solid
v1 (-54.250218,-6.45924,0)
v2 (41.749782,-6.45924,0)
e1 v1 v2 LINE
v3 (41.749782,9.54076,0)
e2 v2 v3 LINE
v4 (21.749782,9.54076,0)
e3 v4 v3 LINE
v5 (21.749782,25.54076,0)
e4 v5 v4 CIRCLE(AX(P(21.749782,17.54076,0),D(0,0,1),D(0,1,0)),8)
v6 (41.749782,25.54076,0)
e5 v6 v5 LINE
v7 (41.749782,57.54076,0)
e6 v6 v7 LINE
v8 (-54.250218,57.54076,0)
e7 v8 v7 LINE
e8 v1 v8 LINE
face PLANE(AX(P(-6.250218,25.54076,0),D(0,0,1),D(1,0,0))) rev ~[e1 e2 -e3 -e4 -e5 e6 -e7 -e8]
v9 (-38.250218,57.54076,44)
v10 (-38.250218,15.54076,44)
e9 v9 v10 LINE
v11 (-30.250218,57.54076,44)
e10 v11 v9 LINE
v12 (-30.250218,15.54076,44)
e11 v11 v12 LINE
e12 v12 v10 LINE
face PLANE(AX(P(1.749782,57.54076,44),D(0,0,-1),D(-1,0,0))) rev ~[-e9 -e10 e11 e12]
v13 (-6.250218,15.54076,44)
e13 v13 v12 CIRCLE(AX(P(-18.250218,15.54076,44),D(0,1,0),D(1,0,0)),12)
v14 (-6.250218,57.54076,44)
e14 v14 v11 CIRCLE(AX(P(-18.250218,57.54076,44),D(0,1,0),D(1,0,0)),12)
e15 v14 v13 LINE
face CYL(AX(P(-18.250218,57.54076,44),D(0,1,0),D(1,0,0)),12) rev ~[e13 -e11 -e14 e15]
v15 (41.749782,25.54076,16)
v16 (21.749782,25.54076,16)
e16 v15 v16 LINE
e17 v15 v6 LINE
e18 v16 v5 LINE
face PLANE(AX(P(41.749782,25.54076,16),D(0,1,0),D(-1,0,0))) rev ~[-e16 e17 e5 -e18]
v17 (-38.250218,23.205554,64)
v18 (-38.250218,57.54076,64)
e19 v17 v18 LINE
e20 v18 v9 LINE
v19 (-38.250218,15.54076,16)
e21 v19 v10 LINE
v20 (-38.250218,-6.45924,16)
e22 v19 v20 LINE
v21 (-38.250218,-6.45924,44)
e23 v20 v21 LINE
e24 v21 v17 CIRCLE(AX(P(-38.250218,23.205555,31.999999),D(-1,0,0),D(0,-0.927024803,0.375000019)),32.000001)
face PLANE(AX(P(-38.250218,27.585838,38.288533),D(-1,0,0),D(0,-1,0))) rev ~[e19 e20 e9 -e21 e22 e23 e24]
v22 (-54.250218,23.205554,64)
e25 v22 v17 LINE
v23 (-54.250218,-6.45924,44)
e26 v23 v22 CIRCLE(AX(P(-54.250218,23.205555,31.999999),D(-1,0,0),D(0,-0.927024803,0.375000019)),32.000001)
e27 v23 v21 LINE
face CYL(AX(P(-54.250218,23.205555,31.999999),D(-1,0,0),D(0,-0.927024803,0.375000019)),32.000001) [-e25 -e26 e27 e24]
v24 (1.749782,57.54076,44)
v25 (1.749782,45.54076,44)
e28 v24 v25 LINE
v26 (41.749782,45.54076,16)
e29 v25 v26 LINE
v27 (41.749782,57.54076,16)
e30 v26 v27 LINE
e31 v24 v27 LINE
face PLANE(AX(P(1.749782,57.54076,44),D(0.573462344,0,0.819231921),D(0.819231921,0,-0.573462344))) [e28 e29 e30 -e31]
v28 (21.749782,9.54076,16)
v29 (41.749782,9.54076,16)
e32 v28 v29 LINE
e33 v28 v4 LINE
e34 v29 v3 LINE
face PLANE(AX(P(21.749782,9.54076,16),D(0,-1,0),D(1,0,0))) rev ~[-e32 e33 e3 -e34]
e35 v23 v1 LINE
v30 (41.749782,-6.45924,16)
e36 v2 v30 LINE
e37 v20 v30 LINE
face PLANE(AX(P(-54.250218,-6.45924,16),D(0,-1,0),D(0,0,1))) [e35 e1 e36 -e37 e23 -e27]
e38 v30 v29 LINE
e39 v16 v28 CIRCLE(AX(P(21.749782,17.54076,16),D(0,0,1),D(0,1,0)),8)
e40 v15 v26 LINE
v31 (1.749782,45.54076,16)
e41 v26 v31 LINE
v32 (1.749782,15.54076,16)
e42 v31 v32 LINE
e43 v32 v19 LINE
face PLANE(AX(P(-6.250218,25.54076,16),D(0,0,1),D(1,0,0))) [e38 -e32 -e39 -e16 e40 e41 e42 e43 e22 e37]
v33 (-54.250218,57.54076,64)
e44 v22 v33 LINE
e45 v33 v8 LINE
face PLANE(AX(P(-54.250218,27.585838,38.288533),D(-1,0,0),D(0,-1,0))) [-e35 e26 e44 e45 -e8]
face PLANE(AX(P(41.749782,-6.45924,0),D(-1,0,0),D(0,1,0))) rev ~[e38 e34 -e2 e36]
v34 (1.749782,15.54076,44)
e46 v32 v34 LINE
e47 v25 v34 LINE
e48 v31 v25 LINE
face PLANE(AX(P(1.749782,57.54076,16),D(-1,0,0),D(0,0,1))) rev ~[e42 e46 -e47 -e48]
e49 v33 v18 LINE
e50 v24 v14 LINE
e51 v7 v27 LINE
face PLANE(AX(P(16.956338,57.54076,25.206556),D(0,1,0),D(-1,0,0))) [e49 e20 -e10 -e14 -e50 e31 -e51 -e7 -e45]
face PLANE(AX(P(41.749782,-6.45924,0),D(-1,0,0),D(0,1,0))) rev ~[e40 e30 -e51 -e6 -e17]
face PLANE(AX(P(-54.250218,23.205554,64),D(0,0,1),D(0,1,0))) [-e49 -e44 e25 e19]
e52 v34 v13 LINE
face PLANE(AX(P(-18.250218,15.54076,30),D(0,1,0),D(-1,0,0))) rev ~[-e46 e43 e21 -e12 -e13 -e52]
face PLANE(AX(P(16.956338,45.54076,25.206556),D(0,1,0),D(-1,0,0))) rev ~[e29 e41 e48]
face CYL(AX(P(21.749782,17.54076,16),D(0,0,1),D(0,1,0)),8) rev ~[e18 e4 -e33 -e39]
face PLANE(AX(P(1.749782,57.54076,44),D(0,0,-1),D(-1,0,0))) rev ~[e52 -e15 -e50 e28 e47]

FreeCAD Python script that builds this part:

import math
import FreeCAD as App
import Part
import Sketcher


def add_polygon(sketch, points):
    """Adds a closed chain of lines whose ends are joined by coincident constraints."""
    first, n = sketch.GeometryCount, len(points)
    for a, b in zip(points, points[1:] + points[:1]):
        sketch.addGeometry(Part.LineSegment(App.Vector(*a, 0), App.Vector(*b, 0)), False)
    for i in range(n):
        sketch.addConstraint(Sketcher.Constraint("Coincident", first + i, 2, first + (i + 1) % n, 1))

doc = App.newDocument("Part")
body = doc.addObject("PartDesign::Body", "Body")

sketch1 = body.newObject("Sketcher::SketchObject", "Sketch")
sketch1.AttachmentSupport = (doc.getObject("XY_Plane"), [""])
sketch1.MapMode = "FlatFace"
add_polygon(sketch1, [(-54, 58), (-54, -6), (42, -6), (42, 58)])
sketch1.addConstraint(Sketcher.Constraint("Vertical", 0))
sketch1.addConstraint(Sketcher.Constraint("Horizontal", 1))
sketch1.addConstraint(Sketcher.Constraint("Vertical", 2))
sketch1.addConstraint(Sketcher.Constraint("Horizontal", 3))
sketch1.addConstraint(Sketcher.Constraint("DistanceX", 1, 1, 1, 2, 96.0))
sketch1.addConstraint(Sketcher.Constraint("DistanceY", 0, 2, 0, 1, 64.0))
sketch1.addConstraint(Sketcher.Constraint("DistanceY", 0, 2, -1, 1, 6.45924))
sketch1.addConstraint(Sketcher.Constraint("DistanceX", 0, 2, -1, 1, 54.250218))
pad1 = body.newObject("PartDesign::Pad", "Pad")
pad1.Profile = sketch1
pad1.Length = 16

sketch2 = body.newObject("Sketcher::SketchObject", "Sketch001")
sketch2.AttachmentSupport = (doc.getObject("YZ_Plane"), [""])
sketch2.MapMode = "FlatFace"
sketch2.AttachmentOffset = App.Placement(App.Vector(0, 0, -54.250218), App.Rotation())
sketch2.addGeometry(Part.LineSegment(App.Vector(58, 16, 0), App.Vector(-6, 16, 0)), False)
sketch2.addGeometry(Part.LineSegment(App.Vector(-6, 16, 0), App.Vector(-6, 44, 0)), False)
sketch2.addGeometry(Part.ArcOfCircle(Part.Circle(App.Vector(23, 32, 0), App.Vector(0, 0, 1), 32), math.radians(90), math.radians(158)), False)
sketch2.addGeometry(Part.LineSegment(App.Vector(23, 64, 0), App.Vector(58, 64, 0)), False)
sketch2.addGeometry(Part.LineSegment(App.Vector(58, 64, 0), App.Vector(58, 16, 0)), False)
sketch2.addConstraint(Sketcher.Constraint("Coincident", 0, 2, 1, 1))
sketch2.addConstraint(Sketcher.Constraint("Coincident", 1, 2, 2, 2))
sketch2.addConstraint(Sketcher.Constraint("Tangent", 2, 1, 3, 1))
sketch2.addConstraint(Sketcher.Constraint("Coincident", 3, 2, 4, 1))
sketch2.addConstraint(Sketcher.Constraint("Coincident", 4, 2, 0, 1))
sketch2.addConstraint(Sketcher.Constraint("Horizontal", 0))
sketch2.addConstraint(Sketcher.Constraint("Vertical", 1))
sketch2.addConstraint(Sketcher.Constraint("Horizontal", 3))
sketch2.addConstraint(Sketcher.Constraint("Vertical", 4))
sketch2.addConstraint(Sketcher.Constraint("Radius", 2, 32.000001))
sketch2.addConstraint(Sketcher.Constraint("DistanceX", 0, 2, 0, 1, 64.0))
sketch2.addConstraint(Sketcher.Constraint("DistanceY", 1, 1, 1, 2, 28.0))
sketch2.addConstraint(Sketcher.Constraint("DistanceY", 4, 2, 4, 1, 48.0))
sketch2.addConstraint(Sketcher.Constraint("DistanceY", -1, 1, 2, 3, 31.999999))
sketch2.addConstraint(Sketcher.Constraint("DistanceX", 0, 2, -1, 1, 6.45924))
pad2 = body.newObject("PartDesign::Pad", "Pad001")
pad2.Profile = sketch2
pad2.Length = 16

sketch3 = body.newObject("Sketcher::SketchObject", "Sketch002")
sketch3.AttachmentSupport = (doc.getObject("XY_Plane"), [""])
sketch3.MapMode = "FlatFace"
sketch3.AttachmentOffset = App.Placement(App.Vector(0, 0, 16), App.Rotation())
sketch3.addGeometry(Part.LineSegment(App.Vector(22, 10, 0), App.Vector(42, 10, 0)), False)
sketch3.addGeometry(Part.LineSegment(App.Vector(42, 10, 0), App.Vector(42, 26, 0)), False)
sketch3.addGeometry(Part.LineSegment(App.Vector(42, 26, 0), App.Vector(22, 26, 0)), False)
sketch3.addGeometry(Part.ArcOfCircle(Part.Circle(App.Vector(22, 18, 0), App.Vector(0, 0, 1), 8), math.radians(90), math.radians(270)), False)
sketch3.addConstraint(Sketcher.Constraint("Coincident", 0, 2, 1, 1))
sketch3.addConstraint(Sketcher.Constraint("Coincident", 1, 2, 2, 1))
sketch3.addConstraint(Sketcher.Constraint("Tangent", 2, 2, 3, 1))
sketch3.addConstraint(Sketcher.Constraint("Tangent", 3, 2, 0, 1))
sketch3.addConstraint(Sketcher.Constraint("Horizontal", 0))
sketch3.addConstraint(Sketcher.Constraint("Vertical", 1))
sketch3.addConstraint(Sketcher.Constraint("Horizontal", 2))
sketch3.addConstraint(Sketcher.Constraint("Radius", 3, 8.0))
sketch3.addConstraint(Sketcher.Constraint("DistanceX", 0, 1, 0, 2, 20.0))
sketch3.addConstraint(Sketcher.Constraint("DistanceX", -1, 1, 3, 3, 21.749782))
sketch3.addConstraint(Sketcher.Constraint("DistanceY", -1, 1, 3, 3, 17.54076))
pocket1 = body.newObject("PartDesign::Pocket", "Pocket")
pocket1.Profile = sketch3
pocket1.Length = 16

sketch4 = body.newObject("Sketcher::SketchObject", "Sketch003")
sketch4.AttachmentSupport = (doc.getObject("XZ_Plane"), [""])
sketch4.MapMode = "FlatFace"
sketch4.AttachmentOffset = App.Placement(App.Vector(0, 0, -57.54076), App.Rotation())
add_polygon(sketch4, [(2, 44), (2, 16), (-38, 16), (-38, 44)])
sketch4.addConstraint(Sketcher.Constraint("Vertical", 0))
sketch4.addConstraint(Sketcher.Constraint("Horizontal", 1))
sketch4.addConstraint(Sketcher.Constraint("Vertical", 2))
sketch4.addConstraint(Sketcher.Constraint("Horizontal", 3))
sketch4.addConstraint(Sketcher.Constraint("DistanceX", 1, 2, 1, 1, 40.0))
sketch4.addConstraint(Sketcher.Constraint("DistanceY", 0, 2, 0, 1, 28.0))
sketch4.addConstraint(Sketcher.Constraint("DistanceY", -1, 1, 0, 2, 16.0))
sketch4.addConstraint(Sketcher.Constraint("DistanceX", -1, 1, 0, 2, 1.749782))
pad3 = body.newObject("PartDesign::Pad", "Pad002")
pad3.Profile = sketch4
pad3.Length = 42

sketch5 = body.newObject("Sketcher::SketchObject", "Sketch004")
sketch5.AttachmentSupport = (doc.getObject("XZ_Plane"), [""])
sketch5.MapMode = "FlatFace"
sketch5.AttachmentOffset = App.Placement(App.Vector(0, 0, -57.54076), App.Rotation())
sketch5.addGeometry(Part.ArcOfCircle(Part.Circle(App.Vector(-18, 44, 0), App.Vector(0, 0, 1), 12), math.radians(180), math.radians(360)), False)
sketch5.addGeometry(Part.LineSegment(App.Vector(-30, 44, 0), App.Vector(-6, 44, 0)), False)
sketch5.addConstraint(Sketcher.Constraint("Coincident", 0, 1, 1, 1))
sketch5.addConstraint(Sketcher.Constraint("Coincident", 1, 2, 0, 2))
sketch5.addConstraint(Sketcher.Constraint("Horizontal", 1))
sketch5.addConstraint(Sketcher.Constraint("Radius", 0, 12.0))
sketch5.addConstraint(Sketcher.Constraint("DistanceY", -1, 1, 0, 3, 44.0))
sketch5.addConstraint(Sketcher.Constraint("DistanceY", -1, 1, 0, 1, 44.0))
sketch5.addConstraint(Sketcher.Constraint("DistanceX", 0, 3, -1, 1, 18.250218))
pocket2 = body.newObject("PartDesign::Pocket", "Pocket001")
pocket2.Profile = sketch5
pocket2.Length = 42
pocket2.Reversed = True

sketch6 = body.newObject("Sketcher::SketchObject", "Sketch005")
sketch6.AttachmentSupport = (doc.getObject("XZ_Plane"), [""])
sketch6.MapMode = "FlatFace"
sketch6.AttachmentOffset = App.Placement(App.Vector(0, 0, -57.54076), App.Rotation())
add_polygon(sketch6, [(42, 16), (2, 16), (2, 44)])
sketch6.addConstraint(Sketcher.Constraint("Horizontal", 0))
sketch6.addConstraint(Sketcher.Constraint("Vertical", 1))
sketch6.addConstraint(Sketcher.Constraint("DistanceX", 0, 2, 0, 1, 40.0))
sketch6.addConstraint(Sketcher.Constraint("DistanceY", 1, 1, 1, 2, 28.0))
sketch6.addConstraint(Sketcher.Constraint("DistanceY", -1, 1, 0, 2, 16.0))
sketch6.addConstraint(Sketcher.Constraint("DistanceX", -1, 1, 0, 2, 1.749782))
pad4 = body.newObject("PartDesign::Pad", "Pad003")
pad4.Profile = sketch6
pad4.Length = 12

doc.recompute()
